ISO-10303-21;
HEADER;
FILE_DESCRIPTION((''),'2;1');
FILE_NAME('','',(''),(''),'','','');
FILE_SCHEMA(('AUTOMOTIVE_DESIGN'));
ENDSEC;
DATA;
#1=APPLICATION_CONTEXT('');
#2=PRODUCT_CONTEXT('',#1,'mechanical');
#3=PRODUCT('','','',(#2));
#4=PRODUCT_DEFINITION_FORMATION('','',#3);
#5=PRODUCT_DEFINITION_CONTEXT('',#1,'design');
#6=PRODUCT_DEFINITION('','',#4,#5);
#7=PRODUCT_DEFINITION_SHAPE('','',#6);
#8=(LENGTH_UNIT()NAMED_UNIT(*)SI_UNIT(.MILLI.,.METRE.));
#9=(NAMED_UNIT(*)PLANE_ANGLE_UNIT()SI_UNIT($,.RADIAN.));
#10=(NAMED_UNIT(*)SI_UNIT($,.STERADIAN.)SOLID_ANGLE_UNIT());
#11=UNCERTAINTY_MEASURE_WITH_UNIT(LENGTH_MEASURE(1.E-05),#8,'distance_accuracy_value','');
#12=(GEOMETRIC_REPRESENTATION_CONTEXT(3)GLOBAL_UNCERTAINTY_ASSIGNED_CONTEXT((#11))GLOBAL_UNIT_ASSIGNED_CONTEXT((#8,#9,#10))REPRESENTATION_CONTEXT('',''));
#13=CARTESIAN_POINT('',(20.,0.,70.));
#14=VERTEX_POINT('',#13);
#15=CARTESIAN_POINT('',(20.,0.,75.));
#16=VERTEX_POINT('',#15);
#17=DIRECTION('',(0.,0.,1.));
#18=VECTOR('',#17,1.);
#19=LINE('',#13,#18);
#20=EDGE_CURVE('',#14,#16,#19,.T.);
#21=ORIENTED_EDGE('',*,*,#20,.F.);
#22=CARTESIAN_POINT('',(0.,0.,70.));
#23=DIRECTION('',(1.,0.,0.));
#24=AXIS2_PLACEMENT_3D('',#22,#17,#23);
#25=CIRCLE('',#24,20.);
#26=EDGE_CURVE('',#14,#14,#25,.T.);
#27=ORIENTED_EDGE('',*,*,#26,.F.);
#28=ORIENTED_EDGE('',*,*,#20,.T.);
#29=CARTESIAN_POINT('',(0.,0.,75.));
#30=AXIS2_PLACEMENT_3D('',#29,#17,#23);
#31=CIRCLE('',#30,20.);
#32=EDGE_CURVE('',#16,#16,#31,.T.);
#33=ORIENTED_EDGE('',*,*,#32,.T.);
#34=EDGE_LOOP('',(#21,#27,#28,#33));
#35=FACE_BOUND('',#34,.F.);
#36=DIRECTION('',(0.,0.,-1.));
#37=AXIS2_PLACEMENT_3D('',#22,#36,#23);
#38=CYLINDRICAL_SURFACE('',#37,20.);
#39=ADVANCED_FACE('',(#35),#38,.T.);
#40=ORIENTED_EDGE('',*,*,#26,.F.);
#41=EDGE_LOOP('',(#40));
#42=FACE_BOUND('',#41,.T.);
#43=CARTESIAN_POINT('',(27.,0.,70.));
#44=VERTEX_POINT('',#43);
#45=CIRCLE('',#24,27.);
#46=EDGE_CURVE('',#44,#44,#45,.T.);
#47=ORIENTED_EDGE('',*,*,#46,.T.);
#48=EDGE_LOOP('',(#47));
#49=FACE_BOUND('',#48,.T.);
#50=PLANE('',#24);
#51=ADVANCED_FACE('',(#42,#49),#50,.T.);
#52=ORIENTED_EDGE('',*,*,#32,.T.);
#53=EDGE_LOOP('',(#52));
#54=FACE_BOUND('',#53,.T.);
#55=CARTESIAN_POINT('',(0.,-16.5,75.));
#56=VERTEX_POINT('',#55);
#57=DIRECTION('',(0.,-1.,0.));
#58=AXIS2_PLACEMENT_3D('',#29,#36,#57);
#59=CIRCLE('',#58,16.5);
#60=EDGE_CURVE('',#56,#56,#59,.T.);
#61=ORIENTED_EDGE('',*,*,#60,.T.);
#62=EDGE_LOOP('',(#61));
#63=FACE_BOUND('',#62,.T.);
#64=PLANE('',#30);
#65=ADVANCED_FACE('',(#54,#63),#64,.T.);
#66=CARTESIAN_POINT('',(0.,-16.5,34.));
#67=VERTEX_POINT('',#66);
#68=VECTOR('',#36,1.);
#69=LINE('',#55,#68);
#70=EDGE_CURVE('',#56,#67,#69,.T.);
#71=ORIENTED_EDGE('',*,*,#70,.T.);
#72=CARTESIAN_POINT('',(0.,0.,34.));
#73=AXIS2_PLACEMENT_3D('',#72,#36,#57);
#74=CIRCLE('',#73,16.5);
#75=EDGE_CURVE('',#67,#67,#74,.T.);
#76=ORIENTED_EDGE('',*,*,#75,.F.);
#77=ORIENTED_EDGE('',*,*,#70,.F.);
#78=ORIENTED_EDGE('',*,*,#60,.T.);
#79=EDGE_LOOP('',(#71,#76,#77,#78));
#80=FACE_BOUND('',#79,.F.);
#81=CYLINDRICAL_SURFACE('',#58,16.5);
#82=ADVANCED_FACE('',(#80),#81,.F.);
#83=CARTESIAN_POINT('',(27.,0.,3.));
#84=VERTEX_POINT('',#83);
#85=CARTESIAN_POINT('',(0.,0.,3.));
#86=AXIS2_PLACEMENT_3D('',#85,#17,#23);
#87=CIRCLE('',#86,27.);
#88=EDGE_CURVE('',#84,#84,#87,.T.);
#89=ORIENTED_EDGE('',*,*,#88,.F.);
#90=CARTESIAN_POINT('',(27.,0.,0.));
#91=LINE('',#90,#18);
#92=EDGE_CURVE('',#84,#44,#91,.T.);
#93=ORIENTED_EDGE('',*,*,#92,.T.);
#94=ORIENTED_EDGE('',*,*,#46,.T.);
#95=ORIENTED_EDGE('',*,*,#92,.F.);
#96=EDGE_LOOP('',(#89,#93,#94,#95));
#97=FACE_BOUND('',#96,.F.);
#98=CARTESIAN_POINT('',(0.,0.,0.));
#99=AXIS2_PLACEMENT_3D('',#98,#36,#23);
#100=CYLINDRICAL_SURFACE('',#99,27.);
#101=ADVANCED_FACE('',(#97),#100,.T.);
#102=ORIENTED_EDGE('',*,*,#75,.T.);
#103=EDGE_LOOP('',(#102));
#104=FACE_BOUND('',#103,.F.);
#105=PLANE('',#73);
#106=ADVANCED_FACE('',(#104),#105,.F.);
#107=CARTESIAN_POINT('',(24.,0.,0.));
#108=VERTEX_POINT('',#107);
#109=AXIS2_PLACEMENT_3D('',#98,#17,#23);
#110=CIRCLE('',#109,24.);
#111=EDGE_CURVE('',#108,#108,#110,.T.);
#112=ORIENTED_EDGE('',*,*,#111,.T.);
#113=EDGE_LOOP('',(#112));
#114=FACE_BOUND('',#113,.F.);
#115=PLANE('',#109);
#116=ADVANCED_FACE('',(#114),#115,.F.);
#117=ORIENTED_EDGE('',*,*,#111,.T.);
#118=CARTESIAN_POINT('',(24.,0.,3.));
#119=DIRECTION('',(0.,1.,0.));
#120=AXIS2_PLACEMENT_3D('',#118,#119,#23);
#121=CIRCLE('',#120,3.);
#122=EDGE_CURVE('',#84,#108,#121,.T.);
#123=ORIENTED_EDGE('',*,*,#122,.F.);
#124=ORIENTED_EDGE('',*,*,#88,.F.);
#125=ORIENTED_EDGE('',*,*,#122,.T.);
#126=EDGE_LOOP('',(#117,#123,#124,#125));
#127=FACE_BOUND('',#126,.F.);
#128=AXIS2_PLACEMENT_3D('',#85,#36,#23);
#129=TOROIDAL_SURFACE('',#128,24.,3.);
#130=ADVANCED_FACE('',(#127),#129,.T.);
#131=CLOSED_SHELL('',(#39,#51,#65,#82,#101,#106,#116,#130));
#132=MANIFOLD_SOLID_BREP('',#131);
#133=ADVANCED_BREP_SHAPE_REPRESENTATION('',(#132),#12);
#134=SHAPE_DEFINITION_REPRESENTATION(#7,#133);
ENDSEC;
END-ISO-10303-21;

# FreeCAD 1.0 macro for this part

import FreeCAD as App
import Part
import Sketcher

V = App.Vector


def edges_at(feature, points):
    """Names of the edges that pass closest to the given points."""
    edges = feature.Shape.Edges
    near = lambda p: min(range(len(edges)), key=lambda i: edges[i].distToShape(Part.Vertex(*p))[0])
    return sorted({f"Edge{near(p) + 1}" for p in points})

doc = App.newDocument("Part")
body = doc.addObject("PartDesign::Body", "Body")

sketch1 = body.newObject("Sketcher::SketchObject", "Sketch")
sketch1.AttachmentSupport = (doc.getObject("XY_Plane"), [""])
sketch1.MapMode = "FlatFace"
sketch1.addGeometry(Part.Circle(V(0, 0, 0), V(0, 0, 1), 27), False)
sketch1.addConstraint(Sketcher.Constraint("Coincident", 0, 3, -1, 1))
sketch1.addConstraint(Sketcher.Constraint("Diameter", 0, 54.0))
pad1 = body.newObject("PartDesign::Pad", "Pad")
pad1.Profile = sketch1
pad1.Length = 70

sketch2 = body.newObject("Sketcher::SketchObject", "Sketch001")
sketch2.AttachmentSupport = (doc.getObject("XY_Plane"), [""])
sketch2.MapMode = "FlatFace"
sketch2.AttachmentOffset = App.Placement(V(0, 0, 70), App.Rotation())
sketch2.addGeometry(Part.Circle(V(0, 0, 0), V(0, 0, 1), 20), False)
sketch2.addConstraint(Sketcher.Constraint("Coincident", 0, 3, -1, 1))
sketch2.addConstraint(Sketcher.Constraint("Diameter", 0, 40.0))
pad2 = body.newObject("PartDesign::Pad", "Pad001")
pad2.Profile = sketch2
pad2.Length = 5

sketch3 = body.newObject("Sketcher::SketchObject", "Sketch002")
sketch3.AttachmentSupport = (doc.getObject("XY_Plane"), [""])
sketch3.MapMode = "FlatFace"
sketch3.AttachmentOffset = App.Placement(V(0, 0, 75), App.Rotation())
sketch3.addGeometry(Part.Circle(V(0, 0, 0), V(0, 0, 1), 16), False)
sketch3.addConstraint(Sketcher.Constraint("Coincident", 0, 3, -1, 1))
sketch3.addConstraint(Sketcher.Constraint("Diameter", 0, 33.0))
doc.recompute()
hole = body.newObject("PartDesign::Hole", "Hole")
hole.Profile = sketch3
hole.ThreadType = "None"
hole.Diameter = 33
hole.DepthType = "Dimension"
hole.Depth = 41
hole.DrillPoint = "Flat"
doc.recompute()

fillet = body.newObject("PartDesign::Fillet", "Fillet")
fillet.Base = (hole, edges_at(hole, [(-27, 0, 0)]))
fillet.Radius = 3

doc.recompute()
